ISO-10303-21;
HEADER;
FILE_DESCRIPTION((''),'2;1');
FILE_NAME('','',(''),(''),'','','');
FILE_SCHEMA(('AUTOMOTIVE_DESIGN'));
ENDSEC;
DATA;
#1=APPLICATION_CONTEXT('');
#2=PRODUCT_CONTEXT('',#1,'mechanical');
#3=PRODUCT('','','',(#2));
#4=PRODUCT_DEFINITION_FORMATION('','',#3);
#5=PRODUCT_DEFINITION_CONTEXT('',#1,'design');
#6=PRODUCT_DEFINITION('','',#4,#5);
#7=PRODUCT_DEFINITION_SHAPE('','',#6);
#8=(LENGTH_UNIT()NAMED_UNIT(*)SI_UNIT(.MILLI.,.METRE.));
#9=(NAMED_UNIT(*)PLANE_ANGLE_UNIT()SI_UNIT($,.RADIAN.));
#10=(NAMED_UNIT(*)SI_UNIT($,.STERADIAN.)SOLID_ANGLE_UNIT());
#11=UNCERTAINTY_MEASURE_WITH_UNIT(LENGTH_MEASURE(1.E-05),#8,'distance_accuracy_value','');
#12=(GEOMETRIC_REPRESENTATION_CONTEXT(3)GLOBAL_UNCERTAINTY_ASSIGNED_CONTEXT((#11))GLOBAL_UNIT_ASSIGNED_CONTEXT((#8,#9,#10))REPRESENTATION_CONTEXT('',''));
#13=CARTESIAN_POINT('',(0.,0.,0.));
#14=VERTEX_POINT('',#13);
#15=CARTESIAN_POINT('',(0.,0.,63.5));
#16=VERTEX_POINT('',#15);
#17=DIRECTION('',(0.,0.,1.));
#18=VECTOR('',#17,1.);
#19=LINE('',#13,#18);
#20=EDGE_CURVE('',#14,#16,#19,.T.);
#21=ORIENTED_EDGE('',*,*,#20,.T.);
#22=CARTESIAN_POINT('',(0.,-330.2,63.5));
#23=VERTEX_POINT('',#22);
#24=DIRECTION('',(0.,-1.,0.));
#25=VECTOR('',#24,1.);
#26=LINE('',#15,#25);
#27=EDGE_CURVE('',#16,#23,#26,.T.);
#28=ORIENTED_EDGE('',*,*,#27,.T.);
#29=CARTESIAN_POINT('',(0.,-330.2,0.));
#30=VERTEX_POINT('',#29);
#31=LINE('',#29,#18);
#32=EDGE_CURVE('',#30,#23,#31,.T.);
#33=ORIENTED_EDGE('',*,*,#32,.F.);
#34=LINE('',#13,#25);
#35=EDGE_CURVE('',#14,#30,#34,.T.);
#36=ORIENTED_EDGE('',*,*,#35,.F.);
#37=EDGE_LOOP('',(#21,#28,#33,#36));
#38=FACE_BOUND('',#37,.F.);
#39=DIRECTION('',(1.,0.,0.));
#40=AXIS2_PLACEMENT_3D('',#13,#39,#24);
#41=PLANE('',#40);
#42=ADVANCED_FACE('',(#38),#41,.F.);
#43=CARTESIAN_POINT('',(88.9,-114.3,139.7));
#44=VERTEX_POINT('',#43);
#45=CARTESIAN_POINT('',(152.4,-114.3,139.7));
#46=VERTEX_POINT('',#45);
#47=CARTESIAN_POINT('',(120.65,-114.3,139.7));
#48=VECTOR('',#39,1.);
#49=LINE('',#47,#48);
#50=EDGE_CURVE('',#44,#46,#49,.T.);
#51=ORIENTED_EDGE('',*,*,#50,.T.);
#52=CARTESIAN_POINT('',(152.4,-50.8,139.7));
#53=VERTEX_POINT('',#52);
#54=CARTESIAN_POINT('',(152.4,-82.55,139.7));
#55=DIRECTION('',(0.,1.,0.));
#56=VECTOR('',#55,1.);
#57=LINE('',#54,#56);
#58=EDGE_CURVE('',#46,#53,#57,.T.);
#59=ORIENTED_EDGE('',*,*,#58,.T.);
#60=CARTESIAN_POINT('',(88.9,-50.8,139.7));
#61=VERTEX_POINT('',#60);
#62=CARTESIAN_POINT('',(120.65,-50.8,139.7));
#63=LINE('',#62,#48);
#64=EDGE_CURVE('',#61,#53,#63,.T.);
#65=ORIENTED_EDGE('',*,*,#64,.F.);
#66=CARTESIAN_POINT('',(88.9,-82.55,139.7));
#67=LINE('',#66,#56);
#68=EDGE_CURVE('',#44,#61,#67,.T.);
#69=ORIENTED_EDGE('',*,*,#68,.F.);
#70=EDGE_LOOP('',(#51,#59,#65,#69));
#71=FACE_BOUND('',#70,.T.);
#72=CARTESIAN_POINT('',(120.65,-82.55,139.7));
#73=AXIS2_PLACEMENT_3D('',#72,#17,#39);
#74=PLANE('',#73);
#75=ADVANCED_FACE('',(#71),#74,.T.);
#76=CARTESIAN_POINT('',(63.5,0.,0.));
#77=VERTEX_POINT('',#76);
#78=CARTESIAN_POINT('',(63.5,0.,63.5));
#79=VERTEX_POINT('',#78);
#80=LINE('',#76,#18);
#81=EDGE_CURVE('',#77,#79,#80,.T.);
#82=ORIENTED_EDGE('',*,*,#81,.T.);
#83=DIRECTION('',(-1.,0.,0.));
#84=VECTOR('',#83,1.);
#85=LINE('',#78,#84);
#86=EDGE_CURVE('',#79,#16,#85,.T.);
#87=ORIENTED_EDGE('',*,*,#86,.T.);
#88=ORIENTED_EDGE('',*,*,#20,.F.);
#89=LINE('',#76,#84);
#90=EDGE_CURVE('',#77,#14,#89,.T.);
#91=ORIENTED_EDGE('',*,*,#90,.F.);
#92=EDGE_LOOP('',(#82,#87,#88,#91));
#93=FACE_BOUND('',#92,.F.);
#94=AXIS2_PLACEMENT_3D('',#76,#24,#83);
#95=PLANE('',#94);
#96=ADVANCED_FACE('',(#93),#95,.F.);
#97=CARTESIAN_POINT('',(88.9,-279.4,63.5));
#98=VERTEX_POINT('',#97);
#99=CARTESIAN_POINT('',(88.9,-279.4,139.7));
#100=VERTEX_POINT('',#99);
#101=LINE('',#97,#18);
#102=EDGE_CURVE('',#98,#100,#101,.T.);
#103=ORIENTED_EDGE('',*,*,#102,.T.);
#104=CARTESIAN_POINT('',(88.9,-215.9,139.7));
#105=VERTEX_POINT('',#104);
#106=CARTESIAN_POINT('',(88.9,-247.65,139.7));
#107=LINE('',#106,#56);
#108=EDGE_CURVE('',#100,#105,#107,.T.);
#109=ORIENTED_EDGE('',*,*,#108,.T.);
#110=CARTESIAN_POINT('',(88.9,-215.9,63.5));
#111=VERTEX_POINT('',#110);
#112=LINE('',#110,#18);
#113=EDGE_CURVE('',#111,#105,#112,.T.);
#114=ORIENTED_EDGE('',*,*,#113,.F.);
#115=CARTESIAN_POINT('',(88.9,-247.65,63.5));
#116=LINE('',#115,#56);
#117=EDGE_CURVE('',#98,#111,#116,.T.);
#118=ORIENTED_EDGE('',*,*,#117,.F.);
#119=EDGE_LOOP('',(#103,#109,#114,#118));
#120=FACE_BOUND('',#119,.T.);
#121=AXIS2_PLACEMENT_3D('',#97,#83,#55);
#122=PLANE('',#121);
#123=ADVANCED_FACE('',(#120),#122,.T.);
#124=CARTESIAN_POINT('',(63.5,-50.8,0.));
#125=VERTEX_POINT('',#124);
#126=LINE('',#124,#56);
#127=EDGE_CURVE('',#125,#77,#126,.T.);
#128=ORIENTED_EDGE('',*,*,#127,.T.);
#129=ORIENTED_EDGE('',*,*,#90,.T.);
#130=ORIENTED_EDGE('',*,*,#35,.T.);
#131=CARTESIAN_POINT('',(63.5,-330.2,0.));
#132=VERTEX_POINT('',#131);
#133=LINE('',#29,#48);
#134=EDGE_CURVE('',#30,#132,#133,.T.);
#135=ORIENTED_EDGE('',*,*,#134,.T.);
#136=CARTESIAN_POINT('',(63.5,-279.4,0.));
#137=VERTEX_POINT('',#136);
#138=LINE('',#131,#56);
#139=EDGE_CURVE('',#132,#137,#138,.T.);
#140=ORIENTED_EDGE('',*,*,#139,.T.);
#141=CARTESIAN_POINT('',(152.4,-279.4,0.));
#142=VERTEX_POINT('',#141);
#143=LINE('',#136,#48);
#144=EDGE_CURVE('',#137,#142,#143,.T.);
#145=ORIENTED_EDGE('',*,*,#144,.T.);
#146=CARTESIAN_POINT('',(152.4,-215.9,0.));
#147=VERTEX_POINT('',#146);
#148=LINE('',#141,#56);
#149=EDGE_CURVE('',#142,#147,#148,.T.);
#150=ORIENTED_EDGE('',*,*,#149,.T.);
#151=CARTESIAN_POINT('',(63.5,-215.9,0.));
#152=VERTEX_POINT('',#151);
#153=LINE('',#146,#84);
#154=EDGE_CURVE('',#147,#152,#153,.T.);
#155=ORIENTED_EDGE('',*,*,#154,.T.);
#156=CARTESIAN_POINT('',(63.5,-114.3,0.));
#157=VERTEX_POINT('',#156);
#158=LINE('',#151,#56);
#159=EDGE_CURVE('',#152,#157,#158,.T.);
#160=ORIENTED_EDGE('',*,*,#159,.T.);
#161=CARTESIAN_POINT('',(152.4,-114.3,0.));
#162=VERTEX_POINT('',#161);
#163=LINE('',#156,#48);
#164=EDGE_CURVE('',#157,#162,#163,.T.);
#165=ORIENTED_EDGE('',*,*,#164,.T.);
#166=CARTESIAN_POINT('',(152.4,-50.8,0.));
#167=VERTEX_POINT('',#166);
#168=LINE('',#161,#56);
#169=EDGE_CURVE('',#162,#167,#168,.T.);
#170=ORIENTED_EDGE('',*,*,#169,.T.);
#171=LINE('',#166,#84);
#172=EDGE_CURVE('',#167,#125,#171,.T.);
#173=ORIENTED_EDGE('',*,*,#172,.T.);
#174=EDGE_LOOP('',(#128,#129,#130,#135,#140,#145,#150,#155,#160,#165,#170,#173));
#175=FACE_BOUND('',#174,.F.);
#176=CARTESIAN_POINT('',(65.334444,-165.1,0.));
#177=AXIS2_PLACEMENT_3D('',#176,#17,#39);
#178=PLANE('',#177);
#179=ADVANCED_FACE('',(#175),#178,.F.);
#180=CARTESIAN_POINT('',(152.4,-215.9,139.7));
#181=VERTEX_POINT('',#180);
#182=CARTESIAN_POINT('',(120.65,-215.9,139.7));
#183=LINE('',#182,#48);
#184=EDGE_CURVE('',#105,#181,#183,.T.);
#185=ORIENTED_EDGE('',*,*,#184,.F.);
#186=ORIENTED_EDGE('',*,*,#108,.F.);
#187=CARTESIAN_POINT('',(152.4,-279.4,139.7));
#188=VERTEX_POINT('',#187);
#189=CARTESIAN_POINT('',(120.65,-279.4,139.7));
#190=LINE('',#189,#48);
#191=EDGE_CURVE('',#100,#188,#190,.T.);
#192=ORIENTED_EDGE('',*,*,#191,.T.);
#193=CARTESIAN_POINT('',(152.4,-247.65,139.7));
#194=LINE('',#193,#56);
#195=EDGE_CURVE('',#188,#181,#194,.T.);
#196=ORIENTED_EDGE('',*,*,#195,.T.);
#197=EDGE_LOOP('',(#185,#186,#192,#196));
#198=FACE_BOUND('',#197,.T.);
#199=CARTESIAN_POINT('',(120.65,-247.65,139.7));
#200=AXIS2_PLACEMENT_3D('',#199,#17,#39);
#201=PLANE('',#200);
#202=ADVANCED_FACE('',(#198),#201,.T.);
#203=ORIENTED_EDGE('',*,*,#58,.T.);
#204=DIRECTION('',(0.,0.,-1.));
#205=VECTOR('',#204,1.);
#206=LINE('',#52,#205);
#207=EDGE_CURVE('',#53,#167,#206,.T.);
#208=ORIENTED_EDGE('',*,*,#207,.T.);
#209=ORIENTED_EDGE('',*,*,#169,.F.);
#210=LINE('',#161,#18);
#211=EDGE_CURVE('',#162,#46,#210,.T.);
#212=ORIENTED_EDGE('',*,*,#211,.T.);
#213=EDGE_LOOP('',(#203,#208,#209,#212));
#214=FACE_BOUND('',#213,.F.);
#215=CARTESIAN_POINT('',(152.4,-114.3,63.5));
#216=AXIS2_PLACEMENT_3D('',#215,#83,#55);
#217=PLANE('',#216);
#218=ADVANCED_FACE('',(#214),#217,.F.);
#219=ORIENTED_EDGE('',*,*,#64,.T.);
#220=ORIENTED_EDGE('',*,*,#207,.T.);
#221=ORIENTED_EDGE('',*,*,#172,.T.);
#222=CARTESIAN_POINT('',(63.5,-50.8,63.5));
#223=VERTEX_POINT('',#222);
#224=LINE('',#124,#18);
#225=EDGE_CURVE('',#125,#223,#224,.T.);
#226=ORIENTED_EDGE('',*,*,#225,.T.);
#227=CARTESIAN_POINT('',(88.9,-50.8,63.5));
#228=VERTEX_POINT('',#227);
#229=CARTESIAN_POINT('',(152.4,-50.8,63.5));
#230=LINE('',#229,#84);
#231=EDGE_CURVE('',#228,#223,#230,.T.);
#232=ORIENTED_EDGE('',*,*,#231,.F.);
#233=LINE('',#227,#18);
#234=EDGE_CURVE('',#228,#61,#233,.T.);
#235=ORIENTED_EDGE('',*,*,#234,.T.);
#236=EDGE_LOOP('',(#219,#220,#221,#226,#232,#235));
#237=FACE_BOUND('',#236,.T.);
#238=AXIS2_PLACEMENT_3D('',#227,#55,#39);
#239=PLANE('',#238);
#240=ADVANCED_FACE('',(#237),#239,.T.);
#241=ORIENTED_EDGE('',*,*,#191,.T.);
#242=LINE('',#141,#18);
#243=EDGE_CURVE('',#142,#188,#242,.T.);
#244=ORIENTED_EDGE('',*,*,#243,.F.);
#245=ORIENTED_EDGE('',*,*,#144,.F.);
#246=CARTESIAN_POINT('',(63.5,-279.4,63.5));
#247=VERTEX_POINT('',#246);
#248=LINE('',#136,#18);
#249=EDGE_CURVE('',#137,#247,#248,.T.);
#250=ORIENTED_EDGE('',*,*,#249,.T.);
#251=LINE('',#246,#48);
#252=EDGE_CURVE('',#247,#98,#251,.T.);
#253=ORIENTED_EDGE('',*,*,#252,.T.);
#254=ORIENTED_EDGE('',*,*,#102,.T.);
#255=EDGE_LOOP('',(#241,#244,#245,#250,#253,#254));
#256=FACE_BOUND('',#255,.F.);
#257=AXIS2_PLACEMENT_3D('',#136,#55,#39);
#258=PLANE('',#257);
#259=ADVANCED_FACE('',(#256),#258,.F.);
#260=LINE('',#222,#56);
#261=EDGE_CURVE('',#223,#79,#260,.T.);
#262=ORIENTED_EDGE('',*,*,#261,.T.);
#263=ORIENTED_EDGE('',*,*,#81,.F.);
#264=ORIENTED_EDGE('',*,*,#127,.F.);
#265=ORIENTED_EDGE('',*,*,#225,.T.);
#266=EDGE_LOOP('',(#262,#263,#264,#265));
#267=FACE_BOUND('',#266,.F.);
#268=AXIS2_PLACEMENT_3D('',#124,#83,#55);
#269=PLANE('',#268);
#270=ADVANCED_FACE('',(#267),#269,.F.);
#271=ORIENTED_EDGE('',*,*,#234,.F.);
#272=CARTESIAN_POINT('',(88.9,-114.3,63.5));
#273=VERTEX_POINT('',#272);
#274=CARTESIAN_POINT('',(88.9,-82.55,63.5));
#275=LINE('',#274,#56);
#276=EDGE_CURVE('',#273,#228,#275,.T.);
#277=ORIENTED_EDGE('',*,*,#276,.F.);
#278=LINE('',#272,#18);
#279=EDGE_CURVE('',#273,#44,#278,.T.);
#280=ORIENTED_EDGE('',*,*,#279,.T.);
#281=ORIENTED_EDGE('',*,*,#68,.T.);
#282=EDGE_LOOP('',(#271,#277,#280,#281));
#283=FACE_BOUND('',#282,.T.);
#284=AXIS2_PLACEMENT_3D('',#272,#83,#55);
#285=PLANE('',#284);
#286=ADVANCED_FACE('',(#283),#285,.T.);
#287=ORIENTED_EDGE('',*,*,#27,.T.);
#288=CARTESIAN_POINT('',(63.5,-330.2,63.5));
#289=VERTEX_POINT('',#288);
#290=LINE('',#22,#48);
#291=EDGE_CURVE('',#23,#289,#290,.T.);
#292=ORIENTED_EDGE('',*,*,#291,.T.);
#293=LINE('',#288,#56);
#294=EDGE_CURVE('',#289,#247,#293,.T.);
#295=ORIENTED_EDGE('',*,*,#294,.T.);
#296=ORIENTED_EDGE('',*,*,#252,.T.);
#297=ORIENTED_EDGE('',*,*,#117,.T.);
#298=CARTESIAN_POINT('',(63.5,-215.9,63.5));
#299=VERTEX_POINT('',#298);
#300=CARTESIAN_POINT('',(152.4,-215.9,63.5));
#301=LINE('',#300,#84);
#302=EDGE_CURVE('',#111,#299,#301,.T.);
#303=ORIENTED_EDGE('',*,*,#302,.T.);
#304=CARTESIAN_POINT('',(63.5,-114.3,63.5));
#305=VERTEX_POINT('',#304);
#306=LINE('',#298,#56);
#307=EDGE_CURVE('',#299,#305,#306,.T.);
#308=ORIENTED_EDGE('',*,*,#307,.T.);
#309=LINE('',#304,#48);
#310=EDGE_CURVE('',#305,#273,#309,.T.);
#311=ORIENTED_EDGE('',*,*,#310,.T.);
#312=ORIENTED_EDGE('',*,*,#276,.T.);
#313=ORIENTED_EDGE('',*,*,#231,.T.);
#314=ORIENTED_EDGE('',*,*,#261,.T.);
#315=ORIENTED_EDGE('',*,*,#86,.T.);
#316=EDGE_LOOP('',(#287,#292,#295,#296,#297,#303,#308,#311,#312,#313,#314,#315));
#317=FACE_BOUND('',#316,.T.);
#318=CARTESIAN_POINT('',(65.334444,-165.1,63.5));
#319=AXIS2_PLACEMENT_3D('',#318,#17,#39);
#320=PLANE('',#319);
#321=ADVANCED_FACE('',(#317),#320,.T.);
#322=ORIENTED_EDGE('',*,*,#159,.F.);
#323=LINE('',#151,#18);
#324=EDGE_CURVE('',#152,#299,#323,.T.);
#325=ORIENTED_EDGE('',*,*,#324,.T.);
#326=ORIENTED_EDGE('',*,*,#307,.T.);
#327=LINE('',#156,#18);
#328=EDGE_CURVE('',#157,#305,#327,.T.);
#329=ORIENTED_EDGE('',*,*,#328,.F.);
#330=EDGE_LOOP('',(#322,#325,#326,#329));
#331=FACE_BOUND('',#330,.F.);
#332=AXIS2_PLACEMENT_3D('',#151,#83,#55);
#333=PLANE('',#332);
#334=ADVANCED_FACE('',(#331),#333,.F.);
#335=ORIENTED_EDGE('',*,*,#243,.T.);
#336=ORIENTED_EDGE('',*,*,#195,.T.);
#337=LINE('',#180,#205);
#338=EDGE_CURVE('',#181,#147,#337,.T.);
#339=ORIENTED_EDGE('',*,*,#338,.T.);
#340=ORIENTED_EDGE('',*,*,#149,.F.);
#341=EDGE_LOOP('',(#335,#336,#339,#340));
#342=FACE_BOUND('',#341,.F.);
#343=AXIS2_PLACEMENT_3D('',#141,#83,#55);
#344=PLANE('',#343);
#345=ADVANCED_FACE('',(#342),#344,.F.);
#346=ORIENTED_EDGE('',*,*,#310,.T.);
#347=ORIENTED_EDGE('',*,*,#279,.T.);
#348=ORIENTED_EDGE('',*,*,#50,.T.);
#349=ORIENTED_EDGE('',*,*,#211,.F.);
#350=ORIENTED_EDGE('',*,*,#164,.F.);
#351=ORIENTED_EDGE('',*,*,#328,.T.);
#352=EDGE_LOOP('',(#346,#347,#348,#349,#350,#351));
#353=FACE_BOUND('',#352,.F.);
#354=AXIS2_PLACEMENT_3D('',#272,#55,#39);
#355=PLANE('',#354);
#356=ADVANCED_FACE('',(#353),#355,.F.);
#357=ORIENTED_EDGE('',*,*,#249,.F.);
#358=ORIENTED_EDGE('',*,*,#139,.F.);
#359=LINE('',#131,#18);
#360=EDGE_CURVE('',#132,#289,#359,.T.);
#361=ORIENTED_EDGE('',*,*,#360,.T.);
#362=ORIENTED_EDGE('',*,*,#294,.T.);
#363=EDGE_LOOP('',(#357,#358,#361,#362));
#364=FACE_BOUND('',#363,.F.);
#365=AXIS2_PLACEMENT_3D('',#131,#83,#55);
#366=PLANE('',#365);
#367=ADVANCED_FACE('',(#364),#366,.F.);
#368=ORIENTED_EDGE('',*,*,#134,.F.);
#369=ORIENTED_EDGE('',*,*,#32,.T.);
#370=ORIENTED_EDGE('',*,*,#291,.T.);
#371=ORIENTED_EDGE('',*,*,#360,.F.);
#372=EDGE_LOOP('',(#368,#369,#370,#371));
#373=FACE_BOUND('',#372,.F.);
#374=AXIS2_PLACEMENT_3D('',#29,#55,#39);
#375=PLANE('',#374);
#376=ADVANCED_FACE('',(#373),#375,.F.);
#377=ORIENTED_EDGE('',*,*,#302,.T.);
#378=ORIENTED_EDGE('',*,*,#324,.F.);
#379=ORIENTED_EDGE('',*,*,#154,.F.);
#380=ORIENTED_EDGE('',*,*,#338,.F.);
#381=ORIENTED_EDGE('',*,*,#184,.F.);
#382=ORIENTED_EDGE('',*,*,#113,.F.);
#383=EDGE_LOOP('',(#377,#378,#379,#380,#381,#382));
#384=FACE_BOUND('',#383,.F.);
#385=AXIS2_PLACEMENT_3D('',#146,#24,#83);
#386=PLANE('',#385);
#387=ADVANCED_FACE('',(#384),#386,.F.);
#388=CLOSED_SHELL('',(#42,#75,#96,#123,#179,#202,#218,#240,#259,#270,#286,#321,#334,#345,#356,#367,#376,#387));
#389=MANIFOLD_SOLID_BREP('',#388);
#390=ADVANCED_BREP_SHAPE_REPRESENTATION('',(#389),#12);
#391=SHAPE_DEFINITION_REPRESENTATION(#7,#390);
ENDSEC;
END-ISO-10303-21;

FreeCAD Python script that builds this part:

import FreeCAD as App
import Part
import Sketcher

V = App.Vector
Q = App.Units.Quantity

doc = App.newDocument("Part")
body = doc.addObject("PartDesign::Body", "Body")

sketch1 = body.newObject("Sketcher::SketchObject", "Sketch")
sketch1.AttachmentSupport = (doc.getObject("XY_Plane"), [""])
sketch1.MapMode = "FlatFace"
sketch1.addGeometry([
    Part.LineSegment(V(63.5, 0, 0), V(0, 0, 0)),
    Part.LineSegment(V(0, 0, 0), V(0, -330.2, 0)),
    Part.LineSegment(V(0, -330.2, 0), V(63.5, -330.2, 0)),
    Part.LineSegment(V(63.5, -330.2, 0), V(63.5, -279.4, 0)),
    Part.LineSegment(V(63.5, -279.4, 0), V(152.4, -279.4, 0)),
    Part.LineSegment(V(152.4, -279.4, 0), V(152.4, -215.9, 0)),
    Part.LineSegment(V(152.4, -215.9, 0), V(63.5, -215.9, 0)),
    Part.LineSegment(V(63.5, -215.9, 0), V(63.5, -114.3, 0)),
    Part.LineSegment(V(63.5, -114.3, 0), V(152.4, -114.3, 0)),
    Part.LineSegment(V(152.4, -114.3, 0), V(152.4, -50.8, 0)),
    Part.LineSegment(V(152.4, -50.8, 0), V(63.5, -50.8, 0)),
    Part.LineSegment(V(63.5, -50.8, 0), V(63.5, 0, 0)),
], False)
sketch1.addConstraint([
    Sketcher.Constraint("Coincident", 0, 2, 1, 1),
    Sketcher.Constraint("Coincident", 1, 2, 2, 1),
    Sketcher.Constraint("Coincident", 2, 2, 3, 1),
    Sketcher.Constraint("Coincident", 3, 2, 4, 1),
    Sketcher.Constraint("Coincident", 4, 2, 5, 1),
    Sketcher.Constraint("Coincident", 5, 2, 6, 1),
    Sketcher.Constraint("Coincident", 6, 2, 7, 1),
    Sketcher.Constraint("Coincident", 7, 2, 8, 1),
    Sketcher.Constraint("Coincident", 8, 2, 9, 1),
    Sketcher.Constraint("Coincident", 9, 2, 10, 1),
    Sketcher.Constraint("Coincident", 10, 2, 11, 1),
    Sketcher.Constraint("Coincident", 11, 2, 0, 1),
    Sketcher.Constraint("Horizontal", 0),
    Sketcher.Constraint("Vertical", 1),
    Sketcher.Constraint("Horizontal", 2),
    Sketcher.Constraint("Vertical", 3),
    Sketcher.Constraint("Horizontal", 4),
    Sketcher.Constraint("Vertical", 5),
    Sketcher.Constraint("Horizontal", 6),
    Sketcher.Constraint("Vertical", 7),
    Sketcher.Constraint("Horizontal", 8),
    Sketcher.Constraint("Vertical", 9),
    Sketcher.Constraint("Horizontal", 10),
    Sketcher.Constraint("Vertical", 11),
    Sketcher.Constraint("Coincident", 0, 2, -1, 1),
    Sketcher.Constraint("Vertical", 3, 2, 6, 2),
    Sketcher.Constraint("Vertical", 5, 2, 8, 2),
    Sketcher.Constraint("Vertical", 7, 2, 10, 2),
    Sketcher.Constraint("Equal", 2, 5),
    Sketcher.Constraint("Equal", 5, 9),
    Sketcher.Constraint("Equal", 3, 11),
    Sketcher.Constraint("DistanceY", 1, 2, 1, 1, Q("13 in")),
    Sketcher.Constraint("DistanceY", 3, 1, 3, 2, Q("2 in")),
    Sketcher.Constraint("DistanceY", 7, 1, 7, 2, Q("4 in")),
    Sketcher.Constraint("DistanceX", 4, 1, 4, 2, Q("3.5 in")),
])
pad1 = body.newObject("PartDesign::Pad", "Pad")
pad1.Profile = sketch1
pad1.Length = Q("2.5 in")

sketch2 = body.newObject("Sketcher::SketchObject", "Sketch001")
sketch2.AttachmentSupport = (doc.getObject("XY_Plane"), [""])
sketch2.MapMode = "FlatFace"
sketch2.AttachmentOffset = App.Placement(V(0, 0, 2.5 * 25.4), App.Rotation())
sketch2.addGeometry([
    Part.LineSegment(V(88.9, -50.8, 0), V(88.9, -114.3, 0)),
    Part.LineSegment(V(88.9, -114.3, 0), V(152.4, -114.3, 0)),
    Part.LineSegment(V(152.4, -114.3, 0), V(152.4, -50.8, 0)),
    Part.LineSegment(V(152.4, -50.8, 0), V(88.9, -50.8, 0)),
    Part.LineSegment(V(88.9, -215.9, 0), V(88.9, -279.4, 0)),
    Part.LineSegment(V(88.9, -279.4, 0), V(152.4, -279.4, 0)),
    Part.LineSegment(V(152.4, -279.4, 0), V(152.4, -215.9, 0)),
    Part.LineSegment(V(152.4, -215.9, 0), V(88.9, -215.9, 0)),
], False)
sketch2.addConstraint([
    Sketcher.Constraint("Coincident", 0, 2, 1, 1),
    Sketcher.Constraint("Coincident", 1, 2, 2, 1),
    Sketcher.Constraint("Coincident", 2, 2, 3, 1),
    Sketcher.Constraint("Coincident", 3, 2, 0, 1),
    Sketcher.Constraint("Coincident", 4, 2, 5, 1),
    Sketcher.Constraint("Coincident", 5, 2, 6, 1),
    Sketcher.Constraint("Coincident", 6, 2, 7, 1),
    Sketcher.Constraint("Coincident", 7, 2, 4, 1),
    Sketcher.Constraint("Vertical", 0),
    Sketcher.Constraint("Horizontal", 1),
    Sketcher.Constraint("Vertical", 2),
    Sketcher.Constraint("Horizontal", 3),
    Sketcher.Constraint("Vertical", 4),
    Sketcher.Constraint("Horizontal", 5),
    Sketcher.Constraint("Vertical", 6),
    Sketcher.Constraint("Horizontal", 7),
    Sketcher.Constraint("Vertical", 3, 2, 4, 2),
    Sketcher.Constraint("Vertical", 2, 2, 5, 2),
    Sketcher.Constraint("Equal", 7, 0),
    Sketcher.Constraint("Equal", 2, 4),
    Sketcher.Constraint("DistanceX", 1, 1, 1, 2, Q("2.5 in")),
    Sketcher.Constraint("DistanceX", -1, 1, 1, 2, Q("6 in")),
    Sketcher.Constraint("DistanceY", 2, 2, -1, 1, Q("2 in")),
    Sketcher.Constraint("DistanceY", 4, 2, -1, 1, Q("11 in")),
])
pad2 = body.newObject("PartDesign::Pad", "Pad001")
pad2.Profile = sketch2
pad2.Length = Q("3 in")

doc.recompute()
